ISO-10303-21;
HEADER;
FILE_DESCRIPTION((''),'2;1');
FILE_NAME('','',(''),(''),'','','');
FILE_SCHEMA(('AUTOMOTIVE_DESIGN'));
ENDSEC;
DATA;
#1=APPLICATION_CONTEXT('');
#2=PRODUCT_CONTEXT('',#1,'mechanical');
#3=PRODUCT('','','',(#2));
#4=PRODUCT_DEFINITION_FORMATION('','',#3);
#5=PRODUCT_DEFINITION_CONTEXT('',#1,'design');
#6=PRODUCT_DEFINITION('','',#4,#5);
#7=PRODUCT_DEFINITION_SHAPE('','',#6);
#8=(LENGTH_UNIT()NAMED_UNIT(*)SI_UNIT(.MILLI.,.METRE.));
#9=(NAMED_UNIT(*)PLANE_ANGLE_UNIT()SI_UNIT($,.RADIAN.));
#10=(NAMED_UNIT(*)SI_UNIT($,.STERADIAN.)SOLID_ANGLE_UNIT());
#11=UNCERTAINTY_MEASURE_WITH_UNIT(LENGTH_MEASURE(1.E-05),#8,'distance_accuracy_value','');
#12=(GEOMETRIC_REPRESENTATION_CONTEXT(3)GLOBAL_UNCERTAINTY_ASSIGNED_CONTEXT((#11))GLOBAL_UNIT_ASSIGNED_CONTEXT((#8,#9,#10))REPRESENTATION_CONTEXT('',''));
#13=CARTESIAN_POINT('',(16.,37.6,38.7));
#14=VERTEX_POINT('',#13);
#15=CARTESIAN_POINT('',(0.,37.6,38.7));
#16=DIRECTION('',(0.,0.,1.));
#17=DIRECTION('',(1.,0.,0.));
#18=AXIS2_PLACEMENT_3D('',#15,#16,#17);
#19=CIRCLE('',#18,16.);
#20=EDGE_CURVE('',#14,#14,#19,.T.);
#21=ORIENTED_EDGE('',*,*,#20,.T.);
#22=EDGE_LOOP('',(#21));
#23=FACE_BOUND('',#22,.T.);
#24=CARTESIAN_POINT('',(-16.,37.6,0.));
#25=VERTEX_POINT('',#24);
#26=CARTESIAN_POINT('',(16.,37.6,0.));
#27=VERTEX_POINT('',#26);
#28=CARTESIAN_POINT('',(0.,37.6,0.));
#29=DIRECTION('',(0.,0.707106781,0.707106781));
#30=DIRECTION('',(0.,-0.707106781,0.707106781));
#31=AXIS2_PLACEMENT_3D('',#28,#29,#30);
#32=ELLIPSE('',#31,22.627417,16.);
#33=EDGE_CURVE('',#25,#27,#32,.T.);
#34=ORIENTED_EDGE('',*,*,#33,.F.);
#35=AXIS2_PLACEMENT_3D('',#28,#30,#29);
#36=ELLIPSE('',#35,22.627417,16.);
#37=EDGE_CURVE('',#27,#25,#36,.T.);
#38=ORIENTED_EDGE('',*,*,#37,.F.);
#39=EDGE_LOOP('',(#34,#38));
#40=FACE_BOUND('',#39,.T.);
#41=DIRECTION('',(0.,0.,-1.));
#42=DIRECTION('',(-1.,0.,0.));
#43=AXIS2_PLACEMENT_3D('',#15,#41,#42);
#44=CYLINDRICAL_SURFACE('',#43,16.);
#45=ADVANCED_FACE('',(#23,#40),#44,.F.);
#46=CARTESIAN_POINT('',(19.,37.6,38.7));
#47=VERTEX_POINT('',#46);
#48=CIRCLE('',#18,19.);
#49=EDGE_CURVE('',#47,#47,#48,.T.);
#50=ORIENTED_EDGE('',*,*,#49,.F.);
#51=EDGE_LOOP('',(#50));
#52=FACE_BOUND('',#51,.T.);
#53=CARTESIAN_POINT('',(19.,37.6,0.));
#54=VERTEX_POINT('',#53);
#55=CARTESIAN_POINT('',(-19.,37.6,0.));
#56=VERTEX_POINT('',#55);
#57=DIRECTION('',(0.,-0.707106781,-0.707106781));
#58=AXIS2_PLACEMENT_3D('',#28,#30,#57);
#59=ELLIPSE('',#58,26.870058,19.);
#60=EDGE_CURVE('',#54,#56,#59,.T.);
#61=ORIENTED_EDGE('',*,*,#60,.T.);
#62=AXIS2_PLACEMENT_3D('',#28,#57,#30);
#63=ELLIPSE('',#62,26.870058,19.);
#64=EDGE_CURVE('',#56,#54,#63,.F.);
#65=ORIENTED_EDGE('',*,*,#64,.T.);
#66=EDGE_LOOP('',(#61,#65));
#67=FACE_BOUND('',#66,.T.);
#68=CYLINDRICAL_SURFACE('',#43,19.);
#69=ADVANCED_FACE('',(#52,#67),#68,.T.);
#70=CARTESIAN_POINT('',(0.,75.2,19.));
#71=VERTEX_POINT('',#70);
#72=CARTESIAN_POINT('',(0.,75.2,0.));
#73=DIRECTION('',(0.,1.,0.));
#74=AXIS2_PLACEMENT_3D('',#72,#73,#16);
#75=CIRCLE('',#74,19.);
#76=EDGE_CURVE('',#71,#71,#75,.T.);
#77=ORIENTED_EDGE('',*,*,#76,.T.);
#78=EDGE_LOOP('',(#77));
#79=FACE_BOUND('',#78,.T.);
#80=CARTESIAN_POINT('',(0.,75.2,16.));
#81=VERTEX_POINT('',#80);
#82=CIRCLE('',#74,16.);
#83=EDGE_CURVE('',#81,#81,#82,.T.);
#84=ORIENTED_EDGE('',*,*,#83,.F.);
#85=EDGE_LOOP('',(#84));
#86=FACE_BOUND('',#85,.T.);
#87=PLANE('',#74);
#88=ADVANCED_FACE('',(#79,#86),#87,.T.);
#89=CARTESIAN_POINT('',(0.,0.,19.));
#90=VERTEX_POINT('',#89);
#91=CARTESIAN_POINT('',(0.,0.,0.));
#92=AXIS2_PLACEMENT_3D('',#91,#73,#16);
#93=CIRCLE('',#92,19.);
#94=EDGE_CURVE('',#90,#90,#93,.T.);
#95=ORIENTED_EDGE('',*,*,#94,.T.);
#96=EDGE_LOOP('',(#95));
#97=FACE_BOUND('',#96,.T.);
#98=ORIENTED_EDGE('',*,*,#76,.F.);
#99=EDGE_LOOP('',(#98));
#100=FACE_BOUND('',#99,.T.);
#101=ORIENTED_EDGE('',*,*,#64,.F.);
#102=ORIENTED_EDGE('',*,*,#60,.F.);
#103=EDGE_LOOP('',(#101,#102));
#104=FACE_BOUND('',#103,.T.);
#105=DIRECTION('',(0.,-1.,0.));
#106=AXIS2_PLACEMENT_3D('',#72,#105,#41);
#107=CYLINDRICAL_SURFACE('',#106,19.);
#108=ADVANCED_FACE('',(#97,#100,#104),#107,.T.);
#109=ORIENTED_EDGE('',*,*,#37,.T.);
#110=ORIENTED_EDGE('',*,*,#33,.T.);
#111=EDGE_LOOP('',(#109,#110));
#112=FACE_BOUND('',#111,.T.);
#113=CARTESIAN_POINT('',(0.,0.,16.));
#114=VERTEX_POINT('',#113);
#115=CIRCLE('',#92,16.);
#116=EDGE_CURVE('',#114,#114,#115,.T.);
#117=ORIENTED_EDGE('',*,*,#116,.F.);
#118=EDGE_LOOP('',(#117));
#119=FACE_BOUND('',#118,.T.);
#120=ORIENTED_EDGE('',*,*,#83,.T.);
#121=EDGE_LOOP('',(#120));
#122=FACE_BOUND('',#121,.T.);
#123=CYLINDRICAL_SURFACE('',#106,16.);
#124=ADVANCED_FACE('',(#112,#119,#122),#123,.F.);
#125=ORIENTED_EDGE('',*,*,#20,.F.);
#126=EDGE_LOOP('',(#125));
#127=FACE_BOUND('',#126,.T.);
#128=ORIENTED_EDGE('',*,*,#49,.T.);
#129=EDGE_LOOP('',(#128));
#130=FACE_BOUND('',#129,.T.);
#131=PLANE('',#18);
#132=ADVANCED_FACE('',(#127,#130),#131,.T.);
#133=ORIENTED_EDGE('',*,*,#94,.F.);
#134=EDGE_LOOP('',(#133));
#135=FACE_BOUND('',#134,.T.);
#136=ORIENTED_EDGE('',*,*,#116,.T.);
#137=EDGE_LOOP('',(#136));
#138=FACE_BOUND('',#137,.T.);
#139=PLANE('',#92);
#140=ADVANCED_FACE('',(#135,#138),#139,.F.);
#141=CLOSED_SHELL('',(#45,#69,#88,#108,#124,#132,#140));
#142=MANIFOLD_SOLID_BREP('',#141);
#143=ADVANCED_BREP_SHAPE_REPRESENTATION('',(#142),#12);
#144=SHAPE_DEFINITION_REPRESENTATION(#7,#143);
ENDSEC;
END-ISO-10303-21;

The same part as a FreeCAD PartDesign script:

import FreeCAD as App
import Part
import Sketcher
Q = App.Units.Quantity

doc = App.newDocument("Part")
params = doc.addObject("Spreadsheet::Sheet", "Params")
for row, (alias, value) in enumerate([
    ("sketch1_diameter", "38 mm"),
    ("sketch1_diameter2", "32 mm"),
    ("pad1_length", "75.2 mm"),
    ("sketch2_diameter", "38 mm"),
    ("sketch2_diameter2", "32 mm"),
    ("pad2_length", "38.7 mm"),
    ("sketch3_diameter", "32 mm"),
    ("sketch4_diameter", "32 mm"),
    ("pocket2_length", "38.7 mm"),
], start=1):
    params.set(f"A{row}", alias)
    params.set(f"B{row}", "=" + value)
    params.setAlias(f"B{row}", alias)

body = doc.addObject("PartDesign::Body", "Body")

# Sketch on XZ plane
sketch1 = doc.addObject("Sketcher::SketchObject", "Sketch")
body.addObject(sketch1)
sketch1.AttachmentSupport = (doc.XZ_Plane, [""])
sketch1.MapMode = "FlatFace"
sketch1.addGeometry([
    Part.Circle(App.Vector(0, 0, 0), App.Vector(0, 0, 1), 19),
    Part.Circle(App.Vector(0, 0, 0), App.Vector(0, 0, 1), 16),
], False)
sketch1.addConstraint([
    Sketcher.Constraint("Coincident", 0, 3, -1, 1),
    Sketcher.Constraint("Coincident", 1, 3, -1, 1),
    Sketcher.Constraint("Diameter", 0, Q("38 mm")),
    Sketcher.Constraint("Diameter", 1, Q("32 mm")),
])
sketch1.setExpression("Constraints[2]", "Params.sketch1_diameter")
sketch1.setExpression("Constraints[3]", "Params.sketch1_diameter2")
pad1 = doc.addObject("PartDesign::Pad", "Pad")
body.addObject(pad1)
pad1.Profile = sketch1
pad1.setExpression("Length", "Params.pad1_length")
pad1.Reversed = True

# Sketch on XY plane
sketch2 = doc.addObject("Sketcher::SketchObject", "Sketch001")
body.addObject(sketch2)
sketch2.AttachmentSupport = (doc.XY_Plane, [""])
sketch2.MapMode = "FlatFace"
sketch2.addGeometry([
    Part.Circle(App.Vector(0, 37.6, 0), App.Vector(0, 0, 1), 19),
    Part.Circle(App.Vector(0, 37.6, 0), App.Vector(0, 0, 1), 16),
], False)
sketch2.addConstraint([
    Sketcher.Constraint("Coincident", 1, 3, 0, 3),
    Sketcher.Constraint("PointOnObject", 0, 3, -2),
    Sketcher.Constraint("Diameter", 0, Q("38 mm")),
    Sketcher.Constraint("Diameter", 1, Q("32 mm")),
    Sketcher.Constraint("DistanceY", -1, 1, 0, 3, Q("37.6 mm")),
])
sketch2.setExpression("Constraints[2]", "Params.sketch2_diameter")
sketch2.setExpression("Constraints[3]", "Params.sketch2_diameter2")
pad2 = doc.addObject("PartDesign::Pad", "Pad001")
body.addObject(pad2)
pad2.Profile = sketch2
pad2.setExpression("Length", "Params.pad2_length")

# Sketch on XZ plane
sketch3 = doc.addObject("Sketcher::SketchObject", "Sketch002")
body.addObject(sketch3)
sketch3.AttachmentSupport = (doc.XZ_Plane, [""])
sketch3.MapMode = "FlatFace"
sketch3.AttachmentOffset = App.Placement(App.Vector(0, 0, -75.2), App.Rotation())
sketch3.addGeometry(Part.Circle(App.Vector(0, 0, 0), App.Vector(0, 0, 1), 16), False)
sketch3.addConstraint([
    Sketcher.Constraint("Coincident", 0, 3, -1, 1),
    Sketcher.Constraint("Diameter", 0, Q("32 mm")),
])
sketch3.setExpression("Constraints[1]", "Params.sketch3_diameter")
pocket1 = doc.addObject("PartDesign::Pocket", "Pocket")
body.addObject(pocket1)
pocket1.Profile = sketch3
pocket1.Type = "ThroughAll"
pocket1.Reversed = True

# Sketch on XY plane
sketch4 = doc.addObject("Sketcher::SketchObject", "Sketch003")
body.addObject(sketch4)
sketch4.AttachmentSupport = (doc.XY_Plane, [""])
sketch4.MapMode = "FlatFace"
sketch4.AttachmentOffset = App.Placement(App.Vector(0, 0, 38.7), App.Rotation())
sketch4.addGeometry(Part.Circle(App.Vector(0, 37.6, 0), App.Vector(0, 0, 1), 16), False)
sketch4.addConstraint([
    Sketcher.Constraint("PointOnObject", 0, 3, -2),
    Sketcher.Constraint("Diameter", 0, Q("32 mm")),
    Sketcher.Constraint("DistanceY", -1, 1, 0, 3, Q("37.6 mm")),
])
sketch4.setExpression("Constraints[1]", "Params.sketch4_diameter")
pocket2 = doc.addObject("PartDesign::Pocket", "Pocket001")
body.addObject(pocket2)
pocket2.Profile = sketch4
pocket2.setExpression("Length", "Params.pocket2_length")

doc.recompute()
